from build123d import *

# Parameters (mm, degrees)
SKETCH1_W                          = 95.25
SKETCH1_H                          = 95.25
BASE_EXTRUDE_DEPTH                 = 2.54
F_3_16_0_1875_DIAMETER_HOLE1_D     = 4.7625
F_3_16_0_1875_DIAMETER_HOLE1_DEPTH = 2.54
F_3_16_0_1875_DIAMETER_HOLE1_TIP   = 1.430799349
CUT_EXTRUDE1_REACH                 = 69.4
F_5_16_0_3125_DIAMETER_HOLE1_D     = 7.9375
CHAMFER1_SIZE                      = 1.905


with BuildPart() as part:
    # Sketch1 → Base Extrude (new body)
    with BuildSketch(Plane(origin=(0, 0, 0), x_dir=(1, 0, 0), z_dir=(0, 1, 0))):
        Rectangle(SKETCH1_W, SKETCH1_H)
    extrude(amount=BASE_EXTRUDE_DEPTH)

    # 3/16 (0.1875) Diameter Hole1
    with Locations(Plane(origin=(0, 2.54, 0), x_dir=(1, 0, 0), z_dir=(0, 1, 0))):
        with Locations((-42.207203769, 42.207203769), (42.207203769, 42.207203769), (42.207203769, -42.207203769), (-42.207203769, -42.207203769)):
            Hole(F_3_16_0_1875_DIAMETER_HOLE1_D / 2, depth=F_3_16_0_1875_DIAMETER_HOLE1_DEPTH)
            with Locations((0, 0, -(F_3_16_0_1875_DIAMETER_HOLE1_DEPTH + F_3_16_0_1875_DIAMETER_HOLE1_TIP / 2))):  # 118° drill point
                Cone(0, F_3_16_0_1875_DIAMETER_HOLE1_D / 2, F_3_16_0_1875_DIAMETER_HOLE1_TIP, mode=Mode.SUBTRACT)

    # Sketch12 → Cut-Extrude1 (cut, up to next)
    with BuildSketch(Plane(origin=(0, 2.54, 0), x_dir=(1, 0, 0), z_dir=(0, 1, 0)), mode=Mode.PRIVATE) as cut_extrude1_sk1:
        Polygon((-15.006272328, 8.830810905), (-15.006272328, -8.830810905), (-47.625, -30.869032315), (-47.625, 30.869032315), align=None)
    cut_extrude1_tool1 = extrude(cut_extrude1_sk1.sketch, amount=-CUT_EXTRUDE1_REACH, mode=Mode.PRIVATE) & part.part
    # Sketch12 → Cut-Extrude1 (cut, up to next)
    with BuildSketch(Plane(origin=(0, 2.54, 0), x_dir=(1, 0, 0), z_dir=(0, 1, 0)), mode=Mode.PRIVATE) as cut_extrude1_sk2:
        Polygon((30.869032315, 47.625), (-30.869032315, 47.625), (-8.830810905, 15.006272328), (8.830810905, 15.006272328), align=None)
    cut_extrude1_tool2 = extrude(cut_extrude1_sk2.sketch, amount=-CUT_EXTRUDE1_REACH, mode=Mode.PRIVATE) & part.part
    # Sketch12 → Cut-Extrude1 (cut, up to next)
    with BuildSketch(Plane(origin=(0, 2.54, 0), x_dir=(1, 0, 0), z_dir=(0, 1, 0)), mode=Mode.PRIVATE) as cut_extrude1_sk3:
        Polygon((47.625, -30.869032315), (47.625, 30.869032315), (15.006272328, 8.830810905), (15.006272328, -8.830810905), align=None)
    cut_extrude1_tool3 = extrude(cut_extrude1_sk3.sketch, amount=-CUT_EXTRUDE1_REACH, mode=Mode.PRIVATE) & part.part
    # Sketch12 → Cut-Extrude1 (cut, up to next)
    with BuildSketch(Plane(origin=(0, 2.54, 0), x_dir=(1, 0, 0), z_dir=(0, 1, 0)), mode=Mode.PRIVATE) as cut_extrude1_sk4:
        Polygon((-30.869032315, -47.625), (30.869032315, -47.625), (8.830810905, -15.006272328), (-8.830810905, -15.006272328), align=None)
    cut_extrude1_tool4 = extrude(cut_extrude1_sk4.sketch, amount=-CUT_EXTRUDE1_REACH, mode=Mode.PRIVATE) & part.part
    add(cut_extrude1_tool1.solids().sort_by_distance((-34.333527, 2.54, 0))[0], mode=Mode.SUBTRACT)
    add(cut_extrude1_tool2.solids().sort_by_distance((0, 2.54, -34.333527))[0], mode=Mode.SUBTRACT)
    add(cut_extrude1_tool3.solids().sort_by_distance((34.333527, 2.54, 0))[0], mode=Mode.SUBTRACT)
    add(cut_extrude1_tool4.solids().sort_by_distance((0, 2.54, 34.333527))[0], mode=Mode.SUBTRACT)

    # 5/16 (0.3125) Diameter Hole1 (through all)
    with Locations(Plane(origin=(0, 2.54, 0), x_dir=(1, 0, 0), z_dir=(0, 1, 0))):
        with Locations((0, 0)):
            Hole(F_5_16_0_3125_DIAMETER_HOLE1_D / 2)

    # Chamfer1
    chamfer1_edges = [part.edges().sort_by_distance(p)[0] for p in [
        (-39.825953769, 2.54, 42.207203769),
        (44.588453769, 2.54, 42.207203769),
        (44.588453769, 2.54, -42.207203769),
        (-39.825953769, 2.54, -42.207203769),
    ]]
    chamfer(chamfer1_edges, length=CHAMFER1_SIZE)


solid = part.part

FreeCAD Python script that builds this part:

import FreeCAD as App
import Part
import Sketcher

V = App.Vector
Q = App.Units.Quantity


def edges_at(feature, points):
    """Names of the edges that pass closest to the given points."""
    edges = feature.Shape.Edges
    near = lambda p: min(range(len(edges)), key=lambda i: edges[i].distToShape(Part.Vertex(*p))[0])
    return sorted({f"Edge{near(p) + 1}" for p in points})


def add_polygon(sketch, points):
    """Adds a closed chain of lines whose ends are joined by coincident constraints."""
    first, n = sketch.GeometryCount, len(points)
    for a, b in zip(points, points[1:] + points[:1]):
        sketch.addGeometry(Part.LineSegment(App.Vector(*a, 0), App.Vector(*b, 0)), False)
    for i in range(n):
        sketch.addConstraint(Sketcher.Constraint("Coincident", first + i, 2, first + (i + 1) % n, 1))

doc = App.newDocument("Part")
body = doc.addObject("PartDesign::Body", "Body")

sketch1 = body.newObject("Sketcher::SketchObject", "Sketch")
sketch1.AttachmentSupport = (doc.getObject("XZ_Plane"), [""])
sketch1.MapMode = "FlatFace"
add_polygon(sketch1, [(-47.625, -47.625), (-47.625, 47.625), (47.625, 47.625), (47.625, -47.625)])
sketch1.addConstraint(Sketcher.Constraint("Vertical", 0))
sketch1.addConstraint(Sketcher.Constraint("Horizontal", 1))
sketch1.addConstraint(Sketcher.Constraint("Vertical", 2))
sketch1.addConstraint(Sketcher.Constraint("Horizontal", 3))
sketch1.addConstraint(Sketcher.Constraint("Symmetric", 0, 2, 2, 2, -1, 1))
sketch1.addConstraint(Sketcher.Constraint("Equal", 3, 0))
sketch1.addConstraint(Sketcher.Constraint("DistanceX", 1, 1, 1, 2, Q("3.75 in")))
pad1 = body.newObject("PartDesign::Pad", "Pad")
pad1.Profile = sketch1
pad1.Length = Q("0.1 in")
pad1.Reversed = True

sketch2 = body.newObject("Sketcher::SketchObject", "Sketch001")
sketch2.AttachmentSupport = (doc.getObject("XZ_Plane"), [""])
sketch2.MapMode = "FlatFace"
sketch2.AttachmentOffset = App.Placement(V(0, 0, -0.1 * 25.4), App.Rotation())
sketch2.addGeometry(Part.Circle(V(-42.207204, -42.207204, 0), V(0, 0, 1), 2.38125), False)
sketch2.addGeometry(Part.Circle(V(42.207204, -42.207204, 0), V(0, 0, 1), 2.38125), False)
sketch2.addGeometry(Part.Circle(V(42.207204, 42.207204, 0), V(0, 0, 1), 2.38125), False)
sketch2.addGeometry(Part.Circle(V(-42.207204, 42.207204, 0), V(0, 0, 1), 2.38125), False)
sketch2.addConstraint(Sketcher.Constraint("Equal", 0, 1))
sketch2.addConstraint(Sketcher.Constraint("Equal", 1, 2))
sketch2.addConstraint(Sketcher.Constraint("Equal", 2, 3))
sketch2.addConstraint(Sketcher.Constraint("Symmetric", 0, 3, 2, 3, -1, 1))
sketch2.addConstraint(Sketcher.Constraint("Symmetric", 1, 3, 3, 3, -1, 1))
sketch2.addConstraint(Sketcher.Constraint("Symmetric", 0, 3, 1, 3, -2))
sketch2.addConstraint(Sketcher.Constraint("Diameter", 0, Q("0.1875 in")))
sketch2.addConstraint(Sketcher.Constraint("DistanceX", 0, 3, -1, 1, Q("42.207204 mm")))
sketch2.addConstraint(Sketcher.Constraint("DistanceY", 0, 3, -1, 1, Q("42.207204 mm")))
doc.recompute()
hole = body.newObject("PartDesign::Hole", "Hole")
hole.Profile = sketch2
hole.ThreadType = "None"
hole.Diameter = Q("0.1875 in")
hole.DepthType = "Dimension"
hole.Depth = Q("0.1 in")
hole.DrillPoint = "Angled"
hole.DrillPointAngle = 118
hole.Reversed = True

sketch3 = body.newObject("Sketcher::SketchObject", "Sketch002")
sketch3.AttachmentSupport = (doc.getObject("XZ_Plane"), [""])
sketch3.MapMode = "FlatFace"
sketch3.AttachmentOffset = App.Placement(V(0, 0, -0.1 * 25.4), App.Rotation())
add_polygon(sketch3, [(-15.006272, 8.830811), (-15.006272, -8.830811), (-47.625, -30.869032), (-47.625, 30.869032)])
sketch3.addConstraint(Sketcher.Constraint("Vertical", 0))
sketch3.addConstraint(Sketcher.Constraint("Vertical", 2))
sketch3.addConstraint(Sketcher.Constraint("Equal", 1, 3))
sketch3.addConstraint(Sketcher.Constraint("DistanceX", 1, 2, -1, 1, Q("1.875 in")))
sketch3.addConstraint(Sketcher.Constraint("DistanceY", 0, 2, 0, 1, Q("17.661622 mm")))
sketch3.addConstraint(Sketcher.Constraint("Distance", 1, Q("39.36578 mm")))
sketch3.addConstraint(Sketcher.Constraint("DistanceY", 2, 1, 2, 2, Q("61.738065 mm")))
sketch3.addConstraint(Sketcher.Constraint("DistanceY", 0, 2, -1, 1, Q("8.830811 mm")))
pocket1 = body.newObject("PartDesign::Pocket", "Pocket")
pocket1.Profile = sketch3
pocket1.Type = "UpToFirst"
pocket1.Reversed = True

sketch4 = body.newObject("Sketcher::SketchObject", "Sketch003")
sketch4.AttachmentSupport = (doc.getObject("XZ_Plane"), [""])
sketch4.MapMode = "FlatFace"
sketch4.AttachmentOffset = App.Placement(V(0, 0, -0.1 * 25.4), App.Rotation())
add_polygon(sketch4, [(30.869032, -47.625), (-30.869032, -47.625), (-8.830811, -15.006272), (8.830811, -15.006272)])
sketch4.addConstraint(Sketcher.Constraint("Horizontal", 0))
sketch4.addConstraint(Sketcher.Constraint("Horizontal", 2))
sketch4.addConstraint(Sketcher.Constraint("Equal", 1, 3))
sketch4.addConstraint(Sketcher.Constraint("DistanceY", 0, 2, -1, 1, Q("1.875 in")))
sketch4.addConstraint(Sketcher.Constraint("DistanceX", 2, 1, 2, 2, Q("17.661622 mm")))
sketch4.addConstraint(Sketcher.Constraint("Distance", 1, Q("39.36578 mm")))
sketch4.addConstraint(Sketcher.Constraint("DistanceX", 0, 2, 0, 1, Q("61.738065 mm")))
sketch4.addConstraint(Sketcher.Constraint("DistanceX", 1, 2, -1, 1, Q("8.830811 mm")))
pocket2 = body.newObject("PartDesign::Pocket", "Pocket001")
pocket2.Profile = sketch4
pocket2.Type = "UpToFirst"
pocket2.Reversed = True

sketch5 = body.newObject("Sketcher::SketchObject", "Sketch004")
sketch5.AttachmentSupport = (doc.getObject("XZ_Plane"), [""])
sketch5.MapMode = "FlatFace"
sketch5.AttachmentOffset = App.Placement(V(0, 0, -0.1 * 25.4), App.Rotation())
add_polygon(sketch5, [(47.625, 30.869032), (47.625, -30.869032), (15.006272, -8.830811), (15.006272, 8.830811)])
sketch5.addConstraint(Sketcher.Constraint("Vertical", 0))
sketch5.addConstraint(Sketcher.Constraint("Vertical", 2))
sketch5.addConstraint(Sketcher.Constraint("Equal", 1, 3))
sketch5.addConstraint(Sketcher.Constraint("DistanceX", -1, 1, 0, 2, Q("1.875 in")))
sketch5.addConstraint(Sketcher.Constraint("DistanceY", 2, 1, 2, 2, Q("17.661622 mm")))
sketch5.addConstraint(Sketcher.Constraint("Distance", 1, Q("39.36578 mm")))
sketch5.addConstraint(Sketcher.Constraint("DistanceY", 0, 2, 0, 1, Q("61.738065 mm")))
sketch5.addConstraint(Sketcher.Constraint("DistanceY", 1, 2, -1, 1, Q("8.830811 mm")))
pocket3 = body.newObject("PartDesign::Pocket", "Pocket002")
pocket3.Profile = sketch5
pocket3.Type = "UpToFirst"
pocket3.Reversed = True

sketch6 = body.newObject("Sketcher::SketchObject", "Sketch005")
sketch6.AttachmentSupport = (doc.getObject("XZ_Plane"), [""])
sketch6.MapMode = "FlatFace"
sketch6.AttachmentOffset = App.Placement(V(0, 0, -0.1 * 25.4), App.Rotation())
add_polygon(sketch6, [(-30.869032, 47.625), (30.869032, 47.625), (8.830811, 15.006272), (-8.830811, 15.006272)])
sketch6.addConstraint(Sketcher.Constraint("Horizontal", 0))
sketch6.addConstraint(Sketcher.Constraint("Horizontal", 2))
sketch6.addConstraint(Sketcher.Constraint("Equal", 1, 3))
sketch6.addConstraint(Sketcher.Constraint("DistanceY", -1, 1, 0, 2, Q("1.875 in")))
sketch6.addConstraint(Sketcher.Constraint("DistanceX", 2, 2, 2, 1, Q("17.661622 mm")))
sketch6.addConstraint(Sketcher.Constraint("Distance", 1, Q("39.36578 mm")))
sketch6.addConstraint(Sketcher.Constraint("DistanceX", 0, 1, 0, 2, Q("61.738065 mm")))
sketch6.addConstraint(Sketcher.Constraint("DistanceX", -1, 1, 1, 2, Q("8.830811 mm")))
pocket4 = body.newObject("PartDesign::Pocket", "Pocket003")
pocket4.Profile = sketch6
pocket4.Type = "UpToFirst"
pocket4.Reversed = True

sketch7 = body.newObject("Sketcher::SketchObject", "Sketch006")
sketch7.AttachmentSupport = (doc.getObject("XZ_Plane"), [""])
sketch7.MapMode = "FlatFace"
sketch7.AttachmentOffset = App.Placement(V(0, 0, -0.1 * 25.4), App.Rotation())
sketch7.addGeometry(Part.Circle(V(0, 0, 0), V(0, 0, 1), 3.96875), False)
sketch7.addConstraint(Sketcher.Constraint("Coincident", 0, 3, -1, 1))
sketch7.addConstraint(Sketcher.Constraint("Diameter", 0, Q("0.3125 in")))
doc.recompute()
hole2 = body.newObject("PartDesign::Hole", "Hole001")
hole2.Profile = sketch7
hole2.ThreadType = "None"
hole2.Diameter = Q("0.3125 in")
hole2.DepthType = "ThroughAll"
hole2.Reversed = True
doc.recompute()

chamfer = body.newObject("PartDesign::Chamfer", "Chamfer")
chamfer.Base = (hole2, edges_at(hole2, [
    (-39.826, 2.54, 42.207),
    (44.588, 2.54, 42.207),
    (44.588, 2.54, -42.207),
    (-39.826, 2.54, -42.207),
]))
chamfer.Size = Q("0.075 in")

doc.recompute()
